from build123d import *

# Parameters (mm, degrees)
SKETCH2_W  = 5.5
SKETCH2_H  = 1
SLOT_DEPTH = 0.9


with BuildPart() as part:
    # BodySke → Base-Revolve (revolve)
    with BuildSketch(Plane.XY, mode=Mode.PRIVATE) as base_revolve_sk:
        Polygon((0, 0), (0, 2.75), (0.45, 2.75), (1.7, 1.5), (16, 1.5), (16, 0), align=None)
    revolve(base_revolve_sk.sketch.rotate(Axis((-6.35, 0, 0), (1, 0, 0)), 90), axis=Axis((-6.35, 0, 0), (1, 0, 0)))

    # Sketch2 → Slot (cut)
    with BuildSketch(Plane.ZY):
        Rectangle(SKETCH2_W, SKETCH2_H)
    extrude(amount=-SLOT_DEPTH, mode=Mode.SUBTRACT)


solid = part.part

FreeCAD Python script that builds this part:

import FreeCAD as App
import Part
import Sketcher

V = App.Vector
Q = App.Units.Quantity

doc = App.newDocument("Part")
body = doc.addObject("PartDesign::Body", "Body")

# Sketch on XY plane
sketch1 = body.newObject("Sketcher::SketchObject", "Sketch")
sketch1.AttachmentSupport = (doc.getObject("XY_Plane"), [""])
sketch1.MapMode = "FlatFace"
sketch1.addGeometry([
    Part.LineSegment(V(0, 2.75, 0), V(0, 0, 0)),  # 0
    Part.LineSegment(V(0, 0, 0), V(16, 0, 0)),  # 1
    Part.LineSegment(V(16, 0, 0), V(16, 1.5, 0)),  # 2
    Part.LineSegment(V(16, 1.5, 0), V(1.7, 1.5, 0)),  # 3
    Part.LineSegment(V(1.7, 1.5, 0), V(0.45, 2.75, 0)),  # 4
    Part.LineSegment(V(0.45, 2.75, 0), V(0, 2.75, 0)),  # 5
], False)
sketch1.addConstraint([
    Sketcher.Constraint("Coincident", 0, 2, 1, 1),
    Sketcher.Constraint("Coincident", 1, 2, 2, 1),
    Sketcher.Constraint("Coincident", 2, 2, 3, 1),
    Sketcher.Constraint("Coincident", 3, 2, 4, 1),
    Sketcher.Constraint("Coincident", 4, 2, 5, 1),
    Sketcher.Constraint("Coincident", 5, 2, 0, 1),
    Sketcher.Constraint("Vertical", 0),
    Sketcher.Constraint("Horizontal", 1),
    Sketcher.Constraint("Vertical", 2),
    Sketcher.Constraint("Horizontal", 3),
    Sketcher.Constraint("Horizontal", 5),
    Sketcher.Constraint("Coincident", 0, 2, -1, 1),
    Sketcher.Constraint("DistanceX", 1, 1, 1, 2, Q("16 mm")),
    Sketcher.Constraint("Angle", 4, Q("135 deg")),
    Sketcher.Constraint("DistanceX", 3, 2, 3, 1, Q("14.3 mm")),
    Sketcher.Constraint("DistanceY", 2, 1, 2, 2, Q("1.5 mm")),
    Sketcher.Constraint("DistanceX", 5, 2, 5, 1, Q("0.45 mm")),
])
revolution = body.newObject("PartDesign::Revolution", "Revolution")
revolution.Profile = sketch1
revolution.ReferenceAxis = (sketch1, ["H_Axis"])
revolution.Angle = 360

# Sketch on YZ plane
sketch2 = body.newObject("Sketcher::SketchObject", "Sketch001")
sketch2.AttachmentSupport = (doc.getObject("YZ_Plane"), [""])
sketch2.MapMode = "FlatFace"
sketch2.addGeometry([
    Part.LineSegment(V(0.5, -2.8, 0), V(-0.5, -2.8, 0)),
    Part.LineSegment(V(-0.5, -2.8, 0), V(-0.5, 2.8, 0)),
    Part.LineSegment(V(-0.5, 2.8, 0), V(0.5, 2.8, 0)),
    Part.LineSegment(V(0.5, 2.8, 0), V(0.5, -2.8, 0)),
], False)
sketch2.addConstraint([
    Sketcher.Constraint("Coincident", 0, 2, 1, 1),
    Sketcher.Constraint("Coincident", 1, 2, 2, 1),
    Sketcher.Constraint("Coincident", 2, 2, 3, 1),
    Sketcher.Constraint("Coincident", 3, 2, 0, 1),
    Sketcher.Constraint("Horizontal", 0),
    Sketcher.Constraint("Vertical", 1),
    Sketcher.Constraint("Horizontal", 2),
    Sketcher.Constraint("Vertical", 3),
    Sketcher.Constraint("Symmetric", 0, 2, 2, 2, -1, 1),
    Sketcher.Constraint("DistanceX", 0, 2, 0, 1, Q("1 mm")),
    Sketcher.Constraint("DistanceY", 1, 1, 1, 2, Q("5.5 mm")),
])
pocket1 = body.newObject("PartDesign::Pocket", "Pocket")
pocket1.Profile = sketch2
pocket1.Length = 0.9
pocket1.Reversed = True

doc.recompute()
